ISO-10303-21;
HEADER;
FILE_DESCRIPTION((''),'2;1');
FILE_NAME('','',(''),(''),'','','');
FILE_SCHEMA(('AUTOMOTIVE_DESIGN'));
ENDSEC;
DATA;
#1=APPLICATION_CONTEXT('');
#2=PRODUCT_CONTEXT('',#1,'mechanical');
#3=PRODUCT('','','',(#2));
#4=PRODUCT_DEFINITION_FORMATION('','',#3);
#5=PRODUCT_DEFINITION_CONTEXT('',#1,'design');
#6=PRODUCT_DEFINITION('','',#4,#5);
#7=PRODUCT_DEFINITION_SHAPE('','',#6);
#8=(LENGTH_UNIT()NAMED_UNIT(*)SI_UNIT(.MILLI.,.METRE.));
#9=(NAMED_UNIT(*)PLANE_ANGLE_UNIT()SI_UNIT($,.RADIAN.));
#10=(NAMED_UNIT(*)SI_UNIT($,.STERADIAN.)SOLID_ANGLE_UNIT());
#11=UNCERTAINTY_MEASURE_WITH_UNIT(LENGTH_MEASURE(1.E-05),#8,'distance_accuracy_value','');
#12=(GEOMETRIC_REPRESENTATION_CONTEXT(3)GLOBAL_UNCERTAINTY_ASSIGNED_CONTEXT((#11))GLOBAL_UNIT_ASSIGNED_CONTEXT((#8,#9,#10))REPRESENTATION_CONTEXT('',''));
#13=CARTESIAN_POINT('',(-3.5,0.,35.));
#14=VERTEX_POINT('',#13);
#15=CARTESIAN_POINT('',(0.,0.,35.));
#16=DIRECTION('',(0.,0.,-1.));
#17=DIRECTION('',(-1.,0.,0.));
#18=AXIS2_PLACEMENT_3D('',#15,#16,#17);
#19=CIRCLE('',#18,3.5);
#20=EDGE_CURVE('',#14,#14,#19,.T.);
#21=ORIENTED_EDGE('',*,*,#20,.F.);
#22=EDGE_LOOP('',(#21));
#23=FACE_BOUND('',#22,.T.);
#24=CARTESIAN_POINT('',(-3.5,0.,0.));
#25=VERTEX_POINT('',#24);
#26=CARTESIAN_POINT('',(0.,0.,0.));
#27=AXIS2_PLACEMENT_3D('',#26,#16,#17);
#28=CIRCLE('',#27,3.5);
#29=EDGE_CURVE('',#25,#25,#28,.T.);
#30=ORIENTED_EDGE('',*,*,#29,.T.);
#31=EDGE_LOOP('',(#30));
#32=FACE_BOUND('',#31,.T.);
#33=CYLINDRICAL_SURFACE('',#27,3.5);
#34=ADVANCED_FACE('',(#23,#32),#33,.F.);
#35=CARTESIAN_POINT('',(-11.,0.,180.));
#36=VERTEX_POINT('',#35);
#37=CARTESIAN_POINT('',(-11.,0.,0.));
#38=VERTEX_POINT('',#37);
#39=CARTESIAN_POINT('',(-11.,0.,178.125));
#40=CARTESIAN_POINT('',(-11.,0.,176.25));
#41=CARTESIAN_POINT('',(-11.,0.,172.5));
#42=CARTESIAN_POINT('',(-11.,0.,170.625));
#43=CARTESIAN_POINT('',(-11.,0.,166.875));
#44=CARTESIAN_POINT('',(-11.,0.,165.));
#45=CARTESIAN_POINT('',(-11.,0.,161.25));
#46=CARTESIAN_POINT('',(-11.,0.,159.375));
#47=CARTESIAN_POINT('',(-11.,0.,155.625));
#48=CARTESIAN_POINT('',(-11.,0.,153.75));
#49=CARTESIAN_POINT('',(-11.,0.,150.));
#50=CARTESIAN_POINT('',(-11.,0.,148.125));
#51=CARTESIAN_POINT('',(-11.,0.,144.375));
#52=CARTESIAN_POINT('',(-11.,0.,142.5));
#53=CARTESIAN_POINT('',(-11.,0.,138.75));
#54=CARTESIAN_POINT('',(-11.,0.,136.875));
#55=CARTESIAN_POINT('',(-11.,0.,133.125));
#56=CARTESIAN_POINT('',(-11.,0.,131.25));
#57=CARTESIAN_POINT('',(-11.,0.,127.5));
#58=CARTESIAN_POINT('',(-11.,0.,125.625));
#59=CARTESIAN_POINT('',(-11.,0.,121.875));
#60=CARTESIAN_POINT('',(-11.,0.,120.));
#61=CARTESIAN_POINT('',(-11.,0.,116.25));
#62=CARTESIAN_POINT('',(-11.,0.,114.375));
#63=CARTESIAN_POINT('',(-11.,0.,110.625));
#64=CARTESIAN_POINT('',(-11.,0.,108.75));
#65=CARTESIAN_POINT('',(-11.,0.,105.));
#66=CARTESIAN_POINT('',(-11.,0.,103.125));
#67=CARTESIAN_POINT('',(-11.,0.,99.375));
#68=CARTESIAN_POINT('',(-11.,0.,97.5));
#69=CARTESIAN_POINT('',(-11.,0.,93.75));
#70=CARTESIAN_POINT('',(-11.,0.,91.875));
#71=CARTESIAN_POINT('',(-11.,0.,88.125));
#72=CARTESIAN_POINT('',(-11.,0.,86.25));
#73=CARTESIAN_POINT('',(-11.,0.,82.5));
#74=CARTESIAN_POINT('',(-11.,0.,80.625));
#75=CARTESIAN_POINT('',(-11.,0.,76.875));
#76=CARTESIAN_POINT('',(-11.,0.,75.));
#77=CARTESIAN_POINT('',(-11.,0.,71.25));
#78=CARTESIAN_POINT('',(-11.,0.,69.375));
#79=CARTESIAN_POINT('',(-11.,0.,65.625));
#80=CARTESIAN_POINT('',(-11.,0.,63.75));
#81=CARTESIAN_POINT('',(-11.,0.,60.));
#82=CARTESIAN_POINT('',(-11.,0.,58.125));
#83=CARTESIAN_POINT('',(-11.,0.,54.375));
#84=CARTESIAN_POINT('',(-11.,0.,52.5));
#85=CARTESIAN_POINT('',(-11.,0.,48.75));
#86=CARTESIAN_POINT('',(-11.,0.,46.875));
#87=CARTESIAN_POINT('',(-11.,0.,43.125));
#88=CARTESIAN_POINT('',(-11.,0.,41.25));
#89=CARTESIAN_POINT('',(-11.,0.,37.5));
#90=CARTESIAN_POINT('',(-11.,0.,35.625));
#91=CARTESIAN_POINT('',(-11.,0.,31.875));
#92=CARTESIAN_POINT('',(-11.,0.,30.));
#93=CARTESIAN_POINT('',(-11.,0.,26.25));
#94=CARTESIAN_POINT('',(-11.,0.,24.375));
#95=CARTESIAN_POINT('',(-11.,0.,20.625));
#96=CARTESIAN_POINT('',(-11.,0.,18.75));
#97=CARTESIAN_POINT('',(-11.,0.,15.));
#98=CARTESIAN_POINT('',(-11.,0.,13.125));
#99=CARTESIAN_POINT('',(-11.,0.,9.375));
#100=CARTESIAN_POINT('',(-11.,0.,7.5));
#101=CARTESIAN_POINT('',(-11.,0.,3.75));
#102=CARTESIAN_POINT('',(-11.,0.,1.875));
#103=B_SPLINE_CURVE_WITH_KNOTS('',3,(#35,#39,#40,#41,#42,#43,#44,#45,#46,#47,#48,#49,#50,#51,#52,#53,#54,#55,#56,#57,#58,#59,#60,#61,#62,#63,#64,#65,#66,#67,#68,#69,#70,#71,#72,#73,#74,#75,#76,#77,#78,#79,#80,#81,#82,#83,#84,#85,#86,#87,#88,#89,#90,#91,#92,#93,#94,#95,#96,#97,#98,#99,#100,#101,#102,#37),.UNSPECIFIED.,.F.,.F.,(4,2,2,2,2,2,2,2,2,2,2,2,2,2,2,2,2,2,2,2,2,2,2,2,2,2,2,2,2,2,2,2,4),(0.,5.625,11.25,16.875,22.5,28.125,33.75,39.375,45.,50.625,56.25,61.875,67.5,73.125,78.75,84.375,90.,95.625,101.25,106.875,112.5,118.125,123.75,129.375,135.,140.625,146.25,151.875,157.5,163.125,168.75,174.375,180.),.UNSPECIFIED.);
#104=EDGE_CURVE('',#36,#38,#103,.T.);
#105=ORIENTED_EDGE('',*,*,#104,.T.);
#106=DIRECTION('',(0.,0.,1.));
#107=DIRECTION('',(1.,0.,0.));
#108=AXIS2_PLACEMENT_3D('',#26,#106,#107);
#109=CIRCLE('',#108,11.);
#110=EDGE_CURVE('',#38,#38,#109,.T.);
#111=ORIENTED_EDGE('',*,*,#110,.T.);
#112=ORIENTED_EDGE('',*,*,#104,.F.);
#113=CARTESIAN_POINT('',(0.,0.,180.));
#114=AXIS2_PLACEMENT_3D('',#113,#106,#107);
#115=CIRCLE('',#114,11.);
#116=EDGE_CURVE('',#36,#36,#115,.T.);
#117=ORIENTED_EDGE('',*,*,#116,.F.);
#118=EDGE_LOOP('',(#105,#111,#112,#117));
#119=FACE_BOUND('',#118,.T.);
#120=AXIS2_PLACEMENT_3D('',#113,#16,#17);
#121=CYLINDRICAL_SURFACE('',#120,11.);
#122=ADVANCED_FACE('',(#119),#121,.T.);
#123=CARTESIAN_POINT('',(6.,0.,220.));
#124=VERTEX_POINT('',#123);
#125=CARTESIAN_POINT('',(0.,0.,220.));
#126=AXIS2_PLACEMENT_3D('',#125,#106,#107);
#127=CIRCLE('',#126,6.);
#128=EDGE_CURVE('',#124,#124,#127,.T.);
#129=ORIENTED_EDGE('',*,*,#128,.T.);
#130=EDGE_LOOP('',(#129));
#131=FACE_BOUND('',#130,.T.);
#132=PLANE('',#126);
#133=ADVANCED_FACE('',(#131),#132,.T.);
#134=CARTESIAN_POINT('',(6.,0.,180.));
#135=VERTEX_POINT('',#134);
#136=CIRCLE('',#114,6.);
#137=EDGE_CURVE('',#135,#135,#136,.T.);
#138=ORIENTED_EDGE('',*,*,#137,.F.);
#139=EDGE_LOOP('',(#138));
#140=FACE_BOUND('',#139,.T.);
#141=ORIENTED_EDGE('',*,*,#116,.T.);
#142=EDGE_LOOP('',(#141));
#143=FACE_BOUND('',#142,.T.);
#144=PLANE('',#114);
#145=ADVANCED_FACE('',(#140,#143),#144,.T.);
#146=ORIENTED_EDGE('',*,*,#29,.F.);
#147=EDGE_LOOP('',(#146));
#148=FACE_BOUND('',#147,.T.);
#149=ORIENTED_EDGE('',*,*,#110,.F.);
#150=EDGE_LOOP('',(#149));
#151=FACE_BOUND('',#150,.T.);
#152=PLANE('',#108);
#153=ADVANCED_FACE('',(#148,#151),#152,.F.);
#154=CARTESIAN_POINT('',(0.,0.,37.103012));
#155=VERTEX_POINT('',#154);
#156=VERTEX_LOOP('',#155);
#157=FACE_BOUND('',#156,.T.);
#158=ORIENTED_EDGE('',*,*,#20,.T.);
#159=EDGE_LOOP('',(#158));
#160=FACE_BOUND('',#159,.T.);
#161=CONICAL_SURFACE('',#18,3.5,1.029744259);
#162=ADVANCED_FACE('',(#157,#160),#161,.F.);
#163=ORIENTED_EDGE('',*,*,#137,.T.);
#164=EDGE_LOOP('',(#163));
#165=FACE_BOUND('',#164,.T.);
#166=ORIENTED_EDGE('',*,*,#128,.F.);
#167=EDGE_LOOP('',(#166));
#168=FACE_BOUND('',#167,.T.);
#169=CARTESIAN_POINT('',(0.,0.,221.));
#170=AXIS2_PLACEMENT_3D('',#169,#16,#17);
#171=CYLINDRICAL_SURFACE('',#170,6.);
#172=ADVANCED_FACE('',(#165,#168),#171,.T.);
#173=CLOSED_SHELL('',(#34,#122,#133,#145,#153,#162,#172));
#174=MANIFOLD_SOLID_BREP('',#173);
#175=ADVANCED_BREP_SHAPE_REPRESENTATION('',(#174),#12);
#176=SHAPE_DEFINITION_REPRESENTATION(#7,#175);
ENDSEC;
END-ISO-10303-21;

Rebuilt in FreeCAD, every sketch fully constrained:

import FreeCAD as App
import Part
import Sketcher
from FreeCAD import Vector
Q = App.Units.Quantity

doc = App.newDocument("Part")
body = doc.addObject("PartDesign::Body", "Body")

sketch1 = body.newObject("Sketcher::SketchObject", "Sketch")
sketch1.AttachmentSupport = (doc.getObject("XY_Plane"), [""])
sketch1.MapMode = "FlatFace"
sketch1.addGeometry(Part.Circle(Vector(0, 0, 0), Vector(0, 0, 1), 11), False)
sketch1.addConstraint([
    Sketcher.Constraint("Coincident", 0, 3, -1, 1),
    Sketcher.Constraint("Diameter", 0, Q("22 mm")),
])
pad1 = body.newObject("PartDesign::Pad", "Pad")
pad1.Profile = sketch1
pad1.Length = 180

sketch2 = body.newObject("Sketcher::SketchObject", "Sketch001")
sketch2.AttachmentSupport = (doc.getObject("XY_Plane"), [""])
sketch2.MapMode = "FlatFace"
sketch2.AttachmentOffset = App.Placement(Vector(0, 0, 180), App.Rotation())
sketch2.addGeometry(Part.Circle(Vector(0, 0, 0), Vector(0, 0, 1), 6), False)
sketch2.addConstraint([
    Sketcher.Constraint("Coincident", 0, 3, -1, 1),
    Sketcher.Constraint("Diameter", 0, Q("12 mm")),
])
pad2 = body.newObject("PartDesign::Pad", "Pad001")
pad2.Profile = sketch2
pad2.Length = 41

sketch3 = body.newObject("Sketcher::SketchObject", "Sketch002")
sketch3.AttachmentSupport = (doc.getObject("XY_Plane"), [""])
sketch3.MapMode = "FlatFace"
sketch3.AttachmentOffset = App.Placement(Vector(0, 0, 220), App.Rotation())
sketch3.addGeometry(Part.Circle(Vector(0, 0, 0), Vector(0, 0, 1), 6), False)
sketch3.addConstraint([
    Sketcher.Constraint("Coincident", 0, 3, -1, 1),
    Sketcher.Constraint("Diameter", 0, Q("12 mm")),
])
pocket1 = body.newObject("PartDesign::Pocket", "Pocket")
pocket1.Profile = sketch3
pocket1.Length = 1
pocket1.Reversed = True

sketch4 = body.newObject("Sketcher::SketchObject", "Sketch003")
sketch4.AttachmentSupport = (doc.getObject("XY_Plane"), [""])
sketch4.MapMode = "FlatFace"
sketch4.addGeometry(Part.Circle(Vector(0, 0, 0), Vector(0, 0, 1), 3.5), False)
sketch4.addConstraint([
    Sketcher.Constraint("Coincident", 0, 3, -1, 1),
    Sketcher.Constraint("Diameter", 0, Q("7 mm")),
])
doc.recompute()
hole = body.newObject("PartDesign::Hole", "Hole")
hole.Profile = sketch4
hole.ThreadType = "None"
hole.Diameter = 7
hole.DepthType = "Dimension"
hole.Depth = 35
hole.DrillPoint = "Angled"
hole.DrillPointAngle = 118
hole.Reversed = True

doc.recompute()
